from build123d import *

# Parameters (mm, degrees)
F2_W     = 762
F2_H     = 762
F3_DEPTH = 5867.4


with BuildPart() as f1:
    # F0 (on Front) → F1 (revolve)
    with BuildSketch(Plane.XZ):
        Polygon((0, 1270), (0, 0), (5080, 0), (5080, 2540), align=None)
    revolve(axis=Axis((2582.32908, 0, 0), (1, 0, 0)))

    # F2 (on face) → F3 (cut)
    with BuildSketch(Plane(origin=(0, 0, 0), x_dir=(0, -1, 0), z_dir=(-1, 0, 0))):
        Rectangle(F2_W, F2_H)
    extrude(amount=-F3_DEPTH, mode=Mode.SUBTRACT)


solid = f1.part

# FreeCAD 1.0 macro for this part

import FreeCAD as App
import Part
import Sketcher

V = App.Vector
Q = App.Units.Quantity

doc = App.newDocument("Part")
body = doc.addObject("PartDesign::Body", "Body")

# Sketch on XZ plane
sketch1 = body.newObject("Sketcher::SketchObject", "Sketch")
sketch1.AttachmentSupport = (doc.getObject("XZ_Plane"), [""])
sketch1.MapMode = "FlatFace"
sketch1.addGeometry(Part.LineSegment(V(0, 1270, 0), V(0, 0, 0)), False)
sketch1.addGeometry(Part.LineSegment(V(0, 0, 0), V(5080, 0, 0)), False)
sketch1.addGeometry(Part.LineSegment(V(5080, 0, 0), V(5080, 2540, 0)), False)
sketch1.addGeometry(Part.LineSegment(V(5080, 2540, 0), V(0, 1270, 0)), False)
sketch1.addConstraint(Sketcher.Constraint("Coincident", 0, 2, 1, 1))
sketch1.addConstraint(Sketcher.Constraint("Coincident", 1, 2, 2, 1))
sketch1.addConstraint(Sketcher.Constraint("Coincident", 2, 2, 3, 1))
sketch1.addConstraint(Sketcher.Constraint("Coincident", 3, 2, 0, 1))
sketch1.addConstraint(Sketcher.Constraint("Vertical", 0))
sketch1.addConstraint(Sketcher.Constraint("Horizontal", 1))
sketch1.addConstraint(Sketcher.Constraint("Vertical", 2))
sketch1.addConstraint(Sketcher.Constraint("Coincident", 0, 2, -1, 1))
sketch1.addConstraint(Sketcher.Constraint("DistanceX", 1, 1, 1, 2, Q("200 in")))
sketch1.addConstraint(Sketcher.Constraint("DistanceY", 0, 2, 0, 1, Q("50 in")))
sketch1.addConstraint(Sketcher.Constraint("DistanceY", 2, 1, 2, 2, Q("100 in")))
revolution = body.newObject("PartDesign::Revolution", "Revolution")
revolution.Profile = sketch1
revolution.ReferenceAxis = (sketch1, ["H_Axis"])
revolution.Angle = 360

# Sketch on YZ plane
sketch2 = body.newObject("Sketcher::SketchObject", "Sketch001")
sketch2.AttachmentSupport = (doc.getObject("YZ_Plane"), [""])
sketch2.MapMode = "FlatFace"
sketch2.addGeometry(Part.LineSegment(V(381, 381, 0), V(381, -381, 0)), False)
sketch2.addGeometry(Part.LineSegment(V(381, -381, 0), V(-381, -381, 0)), False)
sketch2.addGeometry(Part.LineSegment(V(-381, -381, 0), V(-381, 381, 0)), False)
sketch2.addGeometry(Part.LineSegment(V(-381, 381, 0), V(381, 381, 0)), False)
sketch2.addConstraint(Sketcher.Constraint("Coincident", 0, 2, 1, 1))
sketch2.addConstraint(Sketcher.Constraint("Coincident", 1, 2, 2, 1))
sketch2.addConstraint(Sketcher.Constraint("Coincident", 2, 2, 3, 1))
sketch2.addConstraint(Sketcher.Constraint("Coincident", 3, 2, 0, 1))
sketch2.addConstraint(Sketcher.Constraint("Vertical", 0))
sketch2.addConstraint(Sketcher.Constraint("Horizontal", 1))
sketch2.addConstraint(Sketcher.Constraint("Vertical", 2))
sketch2.addConstraint(Sketcher.Constraint("Horizontal", 3))
sketch2.addConstraint(Sketcher.Constraint("Symmetric", 0, 2, 2, 2, -1, 1))
sketch2.addConstraint(Sketcher.Constraint("Equal", 3, 0))
sketch2.addConstraint(Sketcher.Constraint("DistanceX", 1, 2, 1, 1, Q("30 in")))
pocket1 = body.newObject("PartDesign::Pocket", "Pocket")
pocket1.Profile = sketch2
pocket1.Length = Q("231 in")
pocket1.Reversed = True

doc.recompute()
